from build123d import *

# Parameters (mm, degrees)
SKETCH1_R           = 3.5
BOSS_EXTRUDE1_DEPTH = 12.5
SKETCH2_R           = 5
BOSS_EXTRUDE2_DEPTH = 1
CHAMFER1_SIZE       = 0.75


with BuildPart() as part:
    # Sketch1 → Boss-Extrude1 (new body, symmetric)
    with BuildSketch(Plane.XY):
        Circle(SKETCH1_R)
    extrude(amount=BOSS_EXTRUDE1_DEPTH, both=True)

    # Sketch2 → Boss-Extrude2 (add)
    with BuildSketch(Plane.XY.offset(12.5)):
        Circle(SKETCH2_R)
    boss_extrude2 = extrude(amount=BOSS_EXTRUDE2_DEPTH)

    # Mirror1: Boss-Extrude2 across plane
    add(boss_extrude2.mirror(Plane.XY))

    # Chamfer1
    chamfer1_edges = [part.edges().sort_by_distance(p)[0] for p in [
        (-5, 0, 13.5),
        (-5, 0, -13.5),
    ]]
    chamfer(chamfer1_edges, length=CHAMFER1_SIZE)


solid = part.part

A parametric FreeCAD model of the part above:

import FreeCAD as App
import Part
import Sketcher
Q = App.Units.Quantity


def edges_at(feature, points):
    """Names of the edges that pass closest to the given points."""
    edges = feature.Shape.Edges
    near = lambda p: min(range(len(edges)), key=lambda i: edges[i].distToShape(Part.Vertex(*p))[0])
    return sorted({f"Edge{near(p) + 1}" for p in points})

doc = App.newDocument("Part")
params = doc.addObject("Spreadsheet::Sheet", "Params")
for row, (alias, value) in enumerate([
    ("sketch1_diameter", "7 mm"),
    ("pad1_length", "25 mm"),
    ("sketch2_diameter", "10 mm"),
    ("pad2_length", "1 mm"),
    ("chamfer_size", "0.75 mm"),
], start=1):
    params.set(f"A{row}", alias)
    params.set(f"B{row}", "=" + value)
    params.setAlias(f"B{row}", alias)

body = doc.addObject("PartDesign::Body", "Body")

# Sketch on XY plane
sketch1 = body.newObject("Sketcher::SketchObject", "Sketch")
sketch1.AttachmentSupport = (doc.getObject("XY_Plane"), [""])
sketch1.MapMode = "FlatFace"
sketch1.addGeometry(Part.Circle(App.Vector(0, 0, 0), App.Vector(0, 0, 1), 3.5), False)
sketch1.addConstraint(Sketcher.Constraint("Coincident", 0, 3, -1, 1))
sketch1.addConstraint(Sketcher.Constraint("Diameter", 0, Q("7 mm")))
sketch1.setExpression("Constraints[1]", "Params.sketch1_diameter")
pad1 = body.newObject("PartDesign::Pad", "Pad")
pad1.Profile = sketch1
pad1.setExpression("Length", "Params.pad1_length")
pad1.Midplane = True

# Sketch on XY plane
sketch2 = body.newObject("Sketcher::SketchObject", "Sketch001")
sketch2.AttachmentSupport = (doc.getObject("XY_Plane"), [""])
sketch2.MapMode = "FlatFace"
sketch2.AttachmentOffset = App.Placement(App.Vector(0, 0, 12.5), App.Rotation())
sketch2.addGeometry(Part.Circle(App.Vector(0, 0, 0), App.Vector(0, 0, 1), 5), False)
sketch2.addConstraint(Sketcher.Constraint("Coincident", 0, 3, -1, 1))
sketch2.addConstraint(Sketcher.Constraint("Diameter", 0, Q("10 mm")))
sketch2.setExpression("Constraints[1]", "Params.sketch2_diameter")
pad2 = body.newObject("PartDesign::Pad", "Pad001")
pad2.Profile = sketch2
pad2.setExpression("Length", "Params.pad2_length")
doc.recompute()

mirrored = body.newObject("PartDesign::Mirrored", "Mirrored")
mirrored.Originals = [pad2]
mirrored.MirrorPlane = (doc.getObject("XY_Plane"), [""])
body.Tip = mirrored
doc.recompute()

chamfer = body.newObject("PartDesign::Chamfer", "Chamfer")
chamfer.Base = (mirrored, edges_at(mirrored, [(-5, 0, 13.5), (-5, 0, -13.5)]))
chamfer.setExpression("Size", "Params.chamfer_size")

doc.recompute()
